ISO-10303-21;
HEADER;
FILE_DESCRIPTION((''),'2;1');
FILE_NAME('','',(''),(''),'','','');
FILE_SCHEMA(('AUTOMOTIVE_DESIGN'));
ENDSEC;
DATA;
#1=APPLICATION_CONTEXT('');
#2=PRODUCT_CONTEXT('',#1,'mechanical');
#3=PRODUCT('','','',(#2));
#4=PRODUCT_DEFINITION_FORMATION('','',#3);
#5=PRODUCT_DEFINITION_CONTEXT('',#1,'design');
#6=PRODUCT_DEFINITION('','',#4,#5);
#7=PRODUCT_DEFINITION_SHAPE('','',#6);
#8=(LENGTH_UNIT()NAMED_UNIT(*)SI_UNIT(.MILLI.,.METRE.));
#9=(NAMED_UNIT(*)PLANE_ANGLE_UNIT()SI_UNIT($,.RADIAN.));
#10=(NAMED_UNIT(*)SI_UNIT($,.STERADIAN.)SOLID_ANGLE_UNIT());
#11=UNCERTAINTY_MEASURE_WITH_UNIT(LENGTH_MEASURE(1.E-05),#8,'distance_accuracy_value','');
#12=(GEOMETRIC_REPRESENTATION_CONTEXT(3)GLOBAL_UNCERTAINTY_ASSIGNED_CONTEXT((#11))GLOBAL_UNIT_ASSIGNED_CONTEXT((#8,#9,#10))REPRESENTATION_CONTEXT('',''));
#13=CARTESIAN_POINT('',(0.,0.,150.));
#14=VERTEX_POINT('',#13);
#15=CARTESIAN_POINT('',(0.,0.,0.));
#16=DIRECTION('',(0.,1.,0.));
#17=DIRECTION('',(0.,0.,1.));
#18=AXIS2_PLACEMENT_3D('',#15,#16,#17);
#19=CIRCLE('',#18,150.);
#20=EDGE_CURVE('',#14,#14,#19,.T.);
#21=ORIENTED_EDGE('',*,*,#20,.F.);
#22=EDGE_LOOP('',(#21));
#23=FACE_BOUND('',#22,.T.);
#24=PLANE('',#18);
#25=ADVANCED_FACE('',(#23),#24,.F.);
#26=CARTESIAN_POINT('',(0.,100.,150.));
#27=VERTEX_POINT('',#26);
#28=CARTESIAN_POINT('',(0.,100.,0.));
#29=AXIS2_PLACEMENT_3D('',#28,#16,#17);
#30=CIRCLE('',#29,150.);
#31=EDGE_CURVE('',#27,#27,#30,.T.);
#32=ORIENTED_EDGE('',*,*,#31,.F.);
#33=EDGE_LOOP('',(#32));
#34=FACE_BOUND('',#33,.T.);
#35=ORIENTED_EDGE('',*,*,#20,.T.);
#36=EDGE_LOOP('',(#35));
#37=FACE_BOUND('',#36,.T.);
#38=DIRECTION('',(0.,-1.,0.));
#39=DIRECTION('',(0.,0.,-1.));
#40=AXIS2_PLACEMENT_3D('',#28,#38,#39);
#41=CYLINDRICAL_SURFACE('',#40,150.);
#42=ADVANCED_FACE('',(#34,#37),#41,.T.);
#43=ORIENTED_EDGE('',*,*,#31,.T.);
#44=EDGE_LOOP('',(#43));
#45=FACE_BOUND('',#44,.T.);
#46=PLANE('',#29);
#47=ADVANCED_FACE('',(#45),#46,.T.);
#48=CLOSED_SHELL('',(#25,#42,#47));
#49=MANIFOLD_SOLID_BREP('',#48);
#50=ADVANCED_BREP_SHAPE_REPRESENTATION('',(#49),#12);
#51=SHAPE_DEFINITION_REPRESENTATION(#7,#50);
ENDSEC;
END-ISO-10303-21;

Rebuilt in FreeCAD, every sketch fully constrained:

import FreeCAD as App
import Part
import Sketcher

V = App.Vector
Q = App.Units.Quantity

doc = App.newDocument("Part")
body = doc.addObject("PartDesign::Body", "Body")

# Sketch on XZ plane
sketch1 = body.newObject("Sketcher::SketchObject", "Sketch")
sketch1.AttachmentSupport = (doc.getObject("XZ_Plane"), [""])
sketch1.MapMode = "FlatFace"
sketch1.addGeometry(Part.Circle(V(0, 0, 0), V(0, 0, 1), 150), False)
sketch1.addConstraint([
    Sketcher.Constraint("Coincident", 0, 3, -1, 1),
    Sketcher.Constraint("Diameter", 0, Q("300 mm")),
])
pad1 = body.newObject("PartDesign::Pad", "Pad")
pad1.Profile = sketch1
pad1.Length = 100
pad1.Reversed = True

doc.recompute()
